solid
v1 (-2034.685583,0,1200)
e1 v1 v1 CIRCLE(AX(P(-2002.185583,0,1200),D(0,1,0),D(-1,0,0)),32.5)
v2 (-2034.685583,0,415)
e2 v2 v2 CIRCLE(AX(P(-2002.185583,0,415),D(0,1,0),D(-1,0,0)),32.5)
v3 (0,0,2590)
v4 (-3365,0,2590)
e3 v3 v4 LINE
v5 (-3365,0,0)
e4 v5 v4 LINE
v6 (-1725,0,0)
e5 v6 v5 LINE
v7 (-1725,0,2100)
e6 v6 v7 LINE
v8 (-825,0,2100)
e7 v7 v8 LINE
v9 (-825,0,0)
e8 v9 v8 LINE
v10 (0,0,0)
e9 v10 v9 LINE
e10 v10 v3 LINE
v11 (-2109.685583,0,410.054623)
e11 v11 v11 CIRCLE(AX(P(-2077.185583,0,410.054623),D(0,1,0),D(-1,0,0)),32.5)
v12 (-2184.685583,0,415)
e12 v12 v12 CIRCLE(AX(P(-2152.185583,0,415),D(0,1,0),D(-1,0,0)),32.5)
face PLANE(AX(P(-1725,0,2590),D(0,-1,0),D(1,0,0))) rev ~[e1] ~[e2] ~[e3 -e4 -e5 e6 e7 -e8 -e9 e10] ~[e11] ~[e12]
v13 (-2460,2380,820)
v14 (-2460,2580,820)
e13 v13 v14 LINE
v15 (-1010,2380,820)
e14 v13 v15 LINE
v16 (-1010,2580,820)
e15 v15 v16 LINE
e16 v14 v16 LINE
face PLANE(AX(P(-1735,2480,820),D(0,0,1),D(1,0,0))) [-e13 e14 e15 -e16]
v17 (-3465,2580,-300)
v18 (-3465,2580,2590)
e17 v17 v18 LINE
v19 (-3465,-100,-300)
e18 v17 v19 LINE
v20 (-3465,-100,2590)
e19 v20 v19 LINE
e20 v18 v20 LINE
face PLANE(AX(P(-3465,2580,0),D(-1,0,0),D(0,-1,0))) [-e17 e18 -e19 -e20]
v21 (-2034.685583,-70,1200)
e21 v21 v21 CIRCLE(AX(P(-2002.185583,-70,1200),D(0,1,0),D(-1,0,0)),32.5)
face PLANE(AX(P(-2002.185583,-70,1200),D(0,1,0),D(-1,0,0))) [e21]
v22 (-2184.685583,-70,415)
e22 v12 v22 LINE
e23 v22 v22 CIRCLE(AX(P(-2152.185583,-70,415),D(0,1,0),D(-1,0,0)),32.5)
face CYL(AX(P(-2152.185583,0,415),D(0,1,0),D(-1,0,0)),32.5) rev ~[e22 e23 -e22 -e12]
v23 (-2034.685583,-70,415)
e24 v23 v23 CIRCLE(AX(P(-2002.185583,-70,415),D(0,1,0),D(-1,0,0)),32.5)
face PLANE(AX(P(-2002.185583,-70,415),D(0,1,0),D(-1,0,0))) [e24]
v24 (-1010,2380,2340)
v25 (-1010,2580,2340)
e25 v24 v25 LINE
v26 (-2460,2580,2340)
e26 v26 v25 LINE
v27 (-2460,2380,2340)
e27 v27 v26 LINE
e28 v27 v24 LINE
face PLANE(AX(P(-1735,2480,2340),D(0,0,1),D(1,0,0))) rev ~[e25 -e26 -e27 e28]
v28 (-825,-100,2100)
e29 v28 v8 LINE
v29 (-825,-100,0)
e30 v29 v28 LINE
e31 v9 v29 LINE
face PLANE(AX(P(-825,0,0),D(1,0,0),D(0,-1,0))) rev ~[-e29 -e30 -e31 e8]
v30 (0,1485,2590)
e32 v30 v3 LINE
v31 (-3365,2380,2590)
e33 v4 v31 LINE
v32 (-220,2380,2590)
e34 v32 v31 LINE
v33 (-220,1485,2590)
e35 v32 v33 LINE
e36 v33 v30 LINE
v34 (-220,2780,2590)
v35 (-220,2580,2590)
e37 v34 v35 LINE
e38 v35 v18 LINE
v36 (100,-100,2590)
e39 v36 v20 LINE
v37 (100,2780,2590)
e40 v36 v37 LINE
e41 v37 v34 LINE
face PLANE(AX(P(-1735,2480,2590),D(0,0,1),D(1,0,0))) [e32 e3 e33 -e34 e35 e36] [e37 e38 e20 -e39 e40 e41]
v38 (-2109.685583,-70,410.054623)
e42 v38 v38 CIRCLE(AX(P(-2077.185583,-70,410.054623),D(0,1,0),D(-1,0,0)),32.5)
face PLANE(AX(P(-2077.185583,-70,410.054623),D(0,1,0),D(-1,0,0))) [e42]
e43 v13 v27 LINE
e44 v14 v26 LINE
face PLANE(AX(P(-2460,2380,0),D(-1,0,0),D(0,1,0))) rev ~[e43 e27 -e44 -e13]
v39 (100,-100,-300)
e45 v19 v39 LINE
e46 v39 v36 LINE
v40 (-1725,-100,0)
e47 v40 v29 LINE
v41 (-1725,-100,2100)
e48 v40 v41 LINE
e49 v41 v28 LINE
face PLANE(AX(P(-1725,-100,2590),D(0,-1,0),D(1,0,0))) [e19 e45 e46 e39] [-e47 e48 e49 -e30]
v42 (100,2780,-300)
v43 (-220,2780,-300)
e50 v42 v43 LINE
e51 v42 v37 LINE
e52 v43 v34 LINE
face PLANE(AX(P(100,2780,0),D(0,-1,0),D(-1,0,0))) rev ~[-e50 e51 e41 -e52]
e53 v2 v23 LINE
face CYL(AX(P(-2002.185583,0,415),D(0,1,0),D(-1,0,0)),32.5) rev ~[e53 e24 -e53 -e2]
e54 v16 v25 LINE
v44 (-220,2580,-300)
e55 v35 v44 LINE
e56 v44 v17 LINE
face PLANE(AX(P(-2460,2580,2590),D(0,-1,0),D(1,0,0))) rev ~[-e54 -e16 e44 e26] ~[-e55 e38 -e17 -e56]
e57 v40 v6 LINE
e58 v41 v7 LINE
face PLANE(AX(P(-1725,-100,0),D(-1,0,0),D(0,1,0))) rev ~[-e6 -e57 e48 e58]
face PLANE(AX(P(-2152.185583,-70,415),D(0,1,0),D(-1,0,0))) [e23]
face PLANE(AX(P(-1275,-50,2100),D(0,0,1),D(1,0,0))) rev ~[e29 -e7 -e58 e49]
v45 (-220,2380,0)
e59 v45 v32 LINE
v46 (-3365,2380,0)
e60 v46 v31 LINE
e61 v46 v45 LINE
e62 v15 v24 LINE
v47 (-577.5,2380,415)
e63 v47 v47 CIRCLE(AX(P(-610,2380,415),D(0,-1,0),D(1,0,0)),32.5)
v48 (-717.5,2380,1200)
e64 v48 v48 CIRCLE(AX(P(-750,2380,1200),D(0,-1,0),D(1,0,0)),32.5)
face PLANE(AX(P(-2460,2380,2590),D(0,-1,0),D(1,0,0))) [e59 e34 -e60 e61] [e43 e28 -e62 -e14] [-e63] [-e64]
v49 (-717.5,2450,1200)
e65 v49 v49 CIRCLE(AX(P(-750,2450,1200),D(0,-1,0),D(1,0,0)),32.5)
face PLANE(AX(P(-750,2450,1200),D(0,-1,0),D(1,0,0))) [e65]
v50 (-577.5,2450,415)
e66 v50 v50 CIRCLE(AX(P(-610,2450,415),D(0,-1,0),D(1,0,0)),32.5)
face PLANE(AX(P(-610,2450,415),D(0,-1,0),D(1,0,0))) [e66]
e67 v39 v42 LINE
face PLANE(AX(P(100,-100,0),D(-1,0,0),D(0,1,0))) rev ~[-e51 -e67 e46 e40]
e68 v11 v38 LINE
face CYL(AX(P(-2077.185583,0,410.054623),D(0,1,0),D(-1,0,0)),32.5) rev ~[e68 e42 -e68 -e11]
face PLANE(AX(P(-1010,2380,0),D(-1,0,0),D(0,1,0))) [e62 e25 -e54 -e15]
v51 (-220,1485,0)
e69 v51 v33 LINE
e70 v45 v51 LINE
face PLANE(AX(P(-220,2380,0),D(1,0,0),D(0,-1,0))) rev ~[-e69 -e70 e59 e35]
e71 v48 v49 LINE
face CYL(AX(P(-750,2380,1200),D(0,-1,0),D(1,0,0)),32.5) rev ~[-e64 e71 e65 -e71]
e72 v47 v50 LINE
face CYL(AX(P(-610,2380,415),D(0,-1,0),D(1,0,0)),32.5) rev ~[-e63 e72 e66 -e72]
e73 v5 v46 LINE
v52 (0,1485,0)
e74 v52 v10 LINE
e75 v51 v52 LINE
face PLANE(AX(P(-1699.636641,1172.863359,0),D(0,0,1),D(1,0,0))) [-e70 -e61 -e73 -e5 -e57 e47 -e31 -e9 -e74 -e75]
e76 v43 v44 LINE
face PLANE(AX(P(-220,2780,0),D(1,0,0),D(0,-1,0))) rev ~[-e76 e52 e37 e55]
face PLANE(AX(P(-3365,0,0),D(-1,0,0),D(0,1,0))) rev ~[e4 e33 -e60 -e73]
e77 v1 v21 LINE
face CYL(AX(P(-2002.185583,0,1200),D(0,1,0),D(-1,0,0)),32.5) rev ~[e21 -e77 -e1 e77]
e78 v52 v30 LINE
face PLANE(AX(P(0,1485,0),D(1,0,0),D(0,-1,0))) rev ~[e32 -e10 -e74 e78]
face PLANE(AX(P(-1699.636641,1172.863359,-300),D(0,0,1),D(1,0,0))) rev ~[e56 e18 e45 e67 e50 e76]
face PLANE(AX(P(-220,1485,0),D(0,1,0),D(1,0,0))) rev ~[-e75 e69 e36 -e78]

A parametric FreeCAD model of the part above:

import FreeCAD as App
import Part
import Sketcher
from FreeCAD import Vector
Q = App.Units.Quantity

doc = App.newDocument("Part")
body = doc.addObject("PartDesign::Body", "Body")

# Sketch on XY plane
sketch1 = body.newObject("Sketcher::SketchObject", "Sketch")
sketch1.AttachmentSupport = (doc.getObject("XY_Plane"), [""])
sketch1.MapMode = "FlatFace"
sketch1.addGeometry([
    Part.LineSegment(Vector(-220, 2580, 0), Vector(-3465, 2580, 0)),  # 0
    Part.LineSegment(Vector(-3465, 2580, 0), Vector(-3465, -100, 0)),  # 1
    Part.LineSegment(Vector(-3465, -100, 0), Vector(100, -100, 0)),  # 2
    Part.LineSegment(Vector(100, -100, 0), Vector(100, 2780, 0)),  # 3
    Part.LineSegment(Vector(100, 2780, 0), Vector(-220, 2780, 0)),  # 4
    Part.LineSegment(Vector(-220, 2780, 0), Vector(-220, 2580, 0)),  # 5
], False)
sketch1.addConstraint([
    Sketcher.Constraint("Coincident", 0, 2, 1, 1),
    Sketcher.Constraint("Coincident", 1, 2, 2, 1),
    Sketcher.Constraint("Coincident", 2, 2, 3, 1),
    Sketcher.Constraint("Coincident", 3, 2, 4, 1),
    Sketcher.Constraint("Coincident", 4, 2, 5, 1),
    Sketcher.Constraint("Coincident", 5, 2, 0, 1),
    Sketcher.Constraint("Horizontal", 0),
    Sketcher.Constraint("Vertical", 1),
    Sketcher.Constraint("Horizontal", 2),
    Sketcher.Constraint("Vertical", 3),
    Sketcher.Constraint("Horizontal", 4),
    Sketcher.Constraint("Vertical", 5),
    Sketcher.Constraint("DistanceX", 0, 2, 0, 1, Q("3245 mm")),
    Sketcher.Constraint("DistanceX", 2, 1, 2, 2, Q("3565 mm")),
    Sketcher.Constraint("DistanceY", 1, 2, 1, 1, Q("2680 mm")),
    Sketcher.Constraint("DistanceY", 3, 1, 3, 2, Q("2880 mm")),
    Sketcher.Constraint("DistanceX", 0, 2, -1, 1, Q("3465 mm")),
    Sketcher.Constraint("DistanceY", -1, 1, 0, 2, Q("2580 mm")),
])
pad1 = body.newObject("PartDesign::Pad", "Pad")
pad1.Profile = sketch1
pad1.Length = 300
pad1.Reversed = True

# Sketch on XY plane
sketch2 = body.newObject("Sketcher::SketchObject", "Sketch001")
sketch2.AttachmentSupport = (doc.getObject("XY_Plane"), [""])
sketch2.MapMode = "FlatFace"
sketch2.addGeometry([
    Part.LineSegment(Vector(-220, 1485, 0), Vector(0, 1485, 0)),  # 0
    Part.LineSegment(Vector(0, 1485, 0), Vector(0, 0, 0)),  # 1
    Part.LineSegment(Vector(0, 0, 0), Vector(-825, 0, 0)),  # 2
    Part.LineSegment(Vector(-825, 0, 0), Vector(-825, -100, 0)),  # 3
    Part.LineSegment(Vector(-825, -100, 0), Vector(100, -100, 0)),  # 4
    Part.LineSegment(Vector(100, -100, 0), Vector(100, 2780, 0)),  # 5
    Part.LineSegment(Vector(100, 2780, 0), Vector(-220, 2780, 0)),  # 6
    Part.LineSegment(Vector(-220, 2780, 0), Vector(-220, 2580, 0)),  # 7
    Part.LineSegment(Vector(-220, 2580, 0), Vector(-1010, 2580, 0)),  # 8
    Part.LineSegment(Vector(-1010, 2580, 0), Vector(-1010, 2380, 0)),  # 9
    Part.LineSegment(Vector(-1010, 2380, 0), Vector(-220, 2380, 0)),  # 10
    Part.LineSegment(Vector(-220, 2380, 0), Vector(-220, 1485, 0)),  # 11
    Part.LineSegment(Vector(-1725, -100, 0), Vector(-1725, 0, 0)),  # 12
    Part.LineSegment(Vector(-1725, 0, 0), Vector(-3365, 0, 0)),  # 13
    Part.LineSegment(Vector(-3365, 0, 0), Vector(-3365, 2380, 0)),  # 14
    Part.LineSegment(Vector(-3365, 2380, 0), Vector(-2460, 2380, 0)),  # 15
    Part.LineSegment(Vector(-2460, 2380, 0), Vector(-2460, 2580, 0)),  # 16
    Part.LineSegment(Vector(-2460, 2580, 0), Vector(-3465, 2580, 0)),  # 17
    Part.LineSegment(Vector(-3465, 2580, 0), Vector(-3465, -100, 0)),  # 18
    Part.LineSegment(Vector(-3465, -100, 0), Vector(-1725, -100, 0)),  # 19
], False)
sketch2.addConstraint([
    Sketcher.Constraint("Coincident", 0, 2, 1, 1),
    Sketcher.Constraint("Coincident", 1, 2, 2, 1),
    Sketcher.Constraint("Coincident", 2, 2, 3, 1),
    Sketcher.Constraint("Coincident", 3, 2, 4, 1),
    Sketcher.Constraint("Coincident", 4, 2, 5, 1),
    Sketcher.Constraint("Coincident", 5, 2, 6, 1),
    Sketcher.Constraint("Coincident", 6, 2, 7, 1),
    Sketcher.Constraint("Coincident", 7, 2, 8, 1),
    Sketcher.Constraint("Coincident", 8, 2, 9, 1),
    Sketcher.Constraint("Coincident", 9, 2, 10, 1),
    Sketcher.Constraint("Coincident", 10, 2, 11, 1),
    Sketcher.Constraint("Coincident", 11, 2, 0, 1),
    Sketcher.Constraint("Coincident", 12, 2, 13, 1),
    Sketcher.Constraint("Coincident", 13, 2, 14, 1),
    Sketcher.Constraint("Coincident", 14, 2, 15, 1),
    Sketcher.Constraint("Coincident", 15, 2, 16, 1),
    Sketcher.Constraint("Coincident", 16, 2, 17, 1),
    Sketcher.Constraint("Coincident", 17, 2, 18, 1),
    Sketcher.Constraint("Coincident", 18, 2, 19, 1),
    Sketcher.Constraint("Coincident", 19, 2, 12, 1),
    Sketcher.Constraint("Horizontal", 0),
    Sketcher.Constraint("Vertical", 1),
    Sketcher.Constraint("Horizontal", 2),
    Sketcher.Constraint("Vertical", 3),
    Sketcher.Constraint("Horizontal", 4),
    Sketcher.Constraint("Vertical", 5),
    Sketcher.Constraint("Horizontal", 6),
    Sketcher.Constraint("Vertical", 7),
    Sketcher.Constraint("Horizontal", 8),
    Sketcher.Constraint("Vertical", 9),
    Sketcher.Constraint("Horizontal", 10),
    Sketcher.Constraint("Vertical", 11),
    Sketcher.Constraint("Vertical", 12),
    Sketcher.Constraint("Horizontal", 13),
    Sketcher.Constraint("Vertical", 14),
    Sketcher.Constraint("Horizontal", 15),
    Sketcher.Constraint("Vertical", 16),
    Sketcher.Constraint("Horizontal", 17),
    Sketcher.Constraint("Vertical", 18),
    Sketcher.Constraint("Horizontal", 19),
    Sketcher.Constraint("Coincident", 1, 2, -1, 1),
    Sketcher.Constraint("PointOnObject", 12, 2, -1),
    Sketcher.Constraint("Horizontal", 10, 2, 14, 2),
    Sketcher.Constraint("Horizontal", 8, 2, 16, 2),
    Sketcher.Constraint("Horizontal", 4, 2, 18, 2),
    Sketcher.Constraint("Vertical", 7, 2, 10, 2),
    Sketcher.Constraint("Equal", 7, 9),
    Sketcher.Constraint("DistanceX", 0, 1, 0, 2, Q("220 mm")),
    Sketcher.Constraint("DistanceX", 2, 2, 2, 1, Q("825 mm")),
    Sketcher.Constraint("DistanceX", 4, 1, 4, 2, Q("925 mm")),
    Sketcher.Constraint("DistanceX", 8, 2, 8, 1, Q("790 mm")),
    Sketcher.Constraint("DistanceX", 13, 2, 13, 1, Q("1640 mm")),
    Sketcher.Constraint("DistanceX", 15, 1, 15, 2, Q("905 mm")),
    Sketcher.Constraint("DistanceX", 17, 2, 17, 1, Q("1005 mm")),
    Sketcher.Constraint("DistanceY", 1, 2, 1, 1, Q("1485 mm")),
    Sketcher.Constraint("DistanceY", 3, 2, 3, 1, Q("100 mm")),
    Sketcher.Constraint("DistanceY", 5, 1, 5, 2, Q("2880 mm")),
    Sketcher.Constraint("DistanceY", 7, 2, 7, 1, Q("200 mm")),
    Sketcher.Constraint("DistanceX", 12, 2, -1, 1, Q("1725 mm")),
])
pad2 = body.newObject("PartDesign::Pad", "Pad001")
pad2.Profile = sketch2
pad2.Length = 2590

# Sketch on XY plane
sketch3 = body.newObject("Sketcher::SketchObject", "Sketch002")
sketch3.AttachmentSupport = (doc.getObject("XY_Plane"), [""])
sketch3.MapMode = "FlatFace"
sketch3.addGeometry([
    Part.LineSegment(Vector(-2460, 2580, 0), Vector(-2460, 2380, 0)),
    Part.LineSegment(Vector(-2460, 2380, 0), Vector(-1010, 2380, 0)),
    Part.LineSegment(Vector(-1010, 2380, 0), Vector(-1010, 2580, 0)),
    Part.LineSegment(Vector(-1010, 2580, 0), Vector(-2460, 2580, 0)),
], False)
sketch3.addConstraint([
    Sketcher.Constraint("Coincident", 0, 2, 1, 1),
    Sketcher.Constraint("Coincident", 1, 2, 2, 1),
    Sketcher.Constraint("Coincident", 2, 2, 3, 1),
    Sketcher.Constraint("Coincident", 3, 2, 0, 1),
    Sketcher.Constraint("Vertical", 0),
    Sketcher.Constraint("Horizontal", 1),
    Sketcher.Constraint("Vertical", 2),
    Sketcher.Constraint("Horizontal", 3),
    Sketcher.Constraint("DistanceX", 1, 1, 1, 2, Q("1450 mm")),
    Sketcher.Constraint("DistanceY", 0, 2, 0, 1, Q("200 mm")),
    Sketcher.Constraint("DistanceX", 0, 2, -1, 1, Q("2460 mm")),
    Sketcher.Constraint("DistanceY", -1, 1, 0, 2, Q("2380 mm")),
])
pad3 = body.newObject("PartDesign::Pad", "Pad002")
pad3.Profile = sketch3
pad3.Length = 820

# Sketch on XY plane
sketch4 = body.newObject("Sketcher::SketchObject", "Sketch003")
sketch4.AttachmentSupport = (doc.getObject("XY_Plane"), [""])
sketch4.MapMode = "FlatFace"
sketch4.AttachmentOffset = App.Placement(Vector(0, 0, 2590), App.Rotation())
sketch4.addGeometry([
    Part.LineSegment(Vector(-1725, 0, 0), Vector(-1725, -100, 0)),
    Part.LineSegment(Vector(-1725, -100, 0), Vector(-825, -100, 0)),
    Part.LineSegment(Vector(-825, -100, 0), Vector(-825, 0, 0)),
    Part.LineSegment(Vector(-825, 0, 0), Vector(-1725, 0, 0)),
], False)
sketch4.addConstraint([
    Sketcher.Constraint("Coincident", 0, 2, 1, 1),
    Sketcher.Constraint("Coincident", 1, 2, 2, 1),
    Sketcher.Constraint("Coincident", 2, 2, 3, 1),
    Sketcher.Constraint("Coincident", 3, 2, 0, 1),
    Sketcher.Constraint("Vertical", 0),
    Sketcher.Constraint("Horizontal", 1),
    Sketcher.Constraint("Vertical", 2),
    Sketcher.Constraint("Horizontal", 3),
    Sketcher.Constraint("PointOnObject", 2, 2, -1),
    Sketcher.Constraint("DistanceX", 1, 1, 1, 2, Q("900 mm")),
    Sketcher.Constraint("DistanceY", 0, 2, 0, 1, Q("100 mm")),
    Sketcher.Constraint("DistanceX", 0, 2, -1, 1, Q("1725 mm")),
])
pad4 = body.newObject("PartDesign::Pad", "Pad003")
pad4.Profile = sketch4
pad4.Length = 490
pad4.Reversed = True

# Sketch on XY plane
sketch5 = body.newObject("Sketcher::SketchObject", "Sketch004")
sketch5.AttachmentSupport = (doc.getObject("XY_Plane"), [""])
sketch5.MapMode = "FlatFace"
sketch5.AttachmentOffset = App.Placement(Vector(0, 0, 2590), App.Rotation())
sketch5.addGeometry([
    Part.LineSegment(Vector(-2460, 2580, 0), Vector(-2460, 2380, 0)),
    Part.LineSegment(Vector(-2460, 2380, 0), Vector(-1010, 2380, 0)),
    Part.LineSegment(Vector(-1010, 2380, 0), Vector(-1010, 2580, 0)),
    Part.LineSegment(Vector(-1010, 2580, 0), Vector(-2460, 2580, 0)),
], False)
sketch5.addConstraint([
    Sketcher.Constraint("Coincident", 0, 2, 1, 1),
    Sketcher.Constraint("Coincident", 1, 2, 2, 1),
    Sketcher.Constraint("Coincident", 2, 2, 3, 1),
    Sketcher.Constraint("Coincident", 3, 2, 0, 1),
    Sketcher.Constraint("Vertical", 0),
    Sketcher.Constraint("Horizontal", 1),
    Sketcher.Constraint("Vertical", 2),
    Sketcher.Constraint("Horizontal", 3),
    Sketcher.Constraint("DistanceX", 1, 1, 1, 2, Q("1450 mm")),
    Sketcher.Constraint("DistanceY", 0, 2, 0, 1, Q("200 mm")),
    Sketcher.Constraint("DistanceX", 0, 2, -1, 1, Q("2460 mm")),
    Sketcher.Constraint("DistanceY", -1, 1, 0, 2, Q("2380 mm")),
])
pad5 = body.newObject("PartDesign::Pad", "Pad004")
pad5.Profile = sketch5
pad5.Length = 250
pad5.Reversed = True

# Sketch on XZ plane
sketch6 = body.newObject("Sketcher::SketchObject", "Sketch005")
sketch6.AttachmentSupport = (doc.getObject("XZ_Plane"), [""])
sketch6.MapMode = "FlatFace"
sketch6.AttachmentOffset = App.Placement(Vector(0, 0, -2380), App.Rotation())
sketch6.addGeometry([
    Part.Circle(Vector(-750, 1200, 0), Vector(0, 0, 1), 32.5),
    Part.Circle(Vector(-610, 415, 0), Vector(0, 0, 1), 32.5),
], False)
sketch6.addConstraint([
    Sketcher.Constraint("Equal", 0, 1),
    Sketcher.Constraint("Diameter", 0, Q("65 mm")),
    Sketcher.Constraint("DistanceX", 0, 3, -1, 1, Q("750 mm")),
    Sketcher.Constraint("DistanceY", -1, 1, 0, 3, Q("1200 mm")),
    Sketcher.Constraint("DistanceX", 1, 3, -1, 1, Q("610 mm")),
    Sketcher.Constraint("DistanceY", -1, 1, 1, 3, Q("415 mm")),
])
pocket1 = body.newObject("PartDesign::Pocket", "Pocket")
pocket1.Profile = sketch6
pocket1.Length = 70

# Sketch on XZ plane
sketch7 = body.newObject("Sketcher::SketchObject", "Sketch006")
sketch7.AttachmentSupport = (doc.getObject("XZ_Plane"), [""])
sketch7.MapMode = "FlatFace"
sketch7.addGeometry([
    Part.Circle(Vector(-2002.185583, 415, 0), Vector(0, 0, 1), 32.5),
    Part.Circle(Vector(-2077.185583, 410.054623, 0), Vector(0, 0, 1), 32.5),
    Part.Circle(Vector(-2152.185583, 415, 0), Vector(0, 0, 1), 32.5),
    Part.Circle(Vector(-2002.185583, 1200, 0), Vector(0, 0, 1), 32.5),
], False)
sketch7.addConstraint([
    Sketcher.Constraint("Equal", 0, 1),
    Sketcher.Constraint("Equal", 1, 2),
    Sketcher.Constraint("Equal", 2, 3),
    Sketcher.Constraint("Horizontal", 0, 3, 2, 3),
    Sketcher.Constraint("Vertical", 0, 3, 3, 3),
    Sketcher.Constraint("Diameter", 0, Q("65 mm")),
    Sketcher.Constraint("DistanceY", -1, 1, 0, 3, Q("415 mm")),
    Sketcher.Constraint("DistanceY", -1, 1, 3, 3, Q("1200 mm")),
    Sketcher.Constraint("DistanceX", 1, 3, 0, 3, Q("75 mm")),
    Sketcher.Constraint("DistanceX", 2, 3, 1, 3, Q("75 mm")),
    Sketcher.Constraint("DistanceX", 0, 3, -1, 1, Q("2002.185583 mm")),
    Sketcher.Constraint("DistanceY", -1, 1, 1, 3, Q("410.054623 mm")),
])
pocket2 = body.newObject("PartDesign::Pocket", "Pocket001")
pocket2.Profile = sketch7
pocket2.Length = 70
pocket2.Reversed = True

doc.recompute()
